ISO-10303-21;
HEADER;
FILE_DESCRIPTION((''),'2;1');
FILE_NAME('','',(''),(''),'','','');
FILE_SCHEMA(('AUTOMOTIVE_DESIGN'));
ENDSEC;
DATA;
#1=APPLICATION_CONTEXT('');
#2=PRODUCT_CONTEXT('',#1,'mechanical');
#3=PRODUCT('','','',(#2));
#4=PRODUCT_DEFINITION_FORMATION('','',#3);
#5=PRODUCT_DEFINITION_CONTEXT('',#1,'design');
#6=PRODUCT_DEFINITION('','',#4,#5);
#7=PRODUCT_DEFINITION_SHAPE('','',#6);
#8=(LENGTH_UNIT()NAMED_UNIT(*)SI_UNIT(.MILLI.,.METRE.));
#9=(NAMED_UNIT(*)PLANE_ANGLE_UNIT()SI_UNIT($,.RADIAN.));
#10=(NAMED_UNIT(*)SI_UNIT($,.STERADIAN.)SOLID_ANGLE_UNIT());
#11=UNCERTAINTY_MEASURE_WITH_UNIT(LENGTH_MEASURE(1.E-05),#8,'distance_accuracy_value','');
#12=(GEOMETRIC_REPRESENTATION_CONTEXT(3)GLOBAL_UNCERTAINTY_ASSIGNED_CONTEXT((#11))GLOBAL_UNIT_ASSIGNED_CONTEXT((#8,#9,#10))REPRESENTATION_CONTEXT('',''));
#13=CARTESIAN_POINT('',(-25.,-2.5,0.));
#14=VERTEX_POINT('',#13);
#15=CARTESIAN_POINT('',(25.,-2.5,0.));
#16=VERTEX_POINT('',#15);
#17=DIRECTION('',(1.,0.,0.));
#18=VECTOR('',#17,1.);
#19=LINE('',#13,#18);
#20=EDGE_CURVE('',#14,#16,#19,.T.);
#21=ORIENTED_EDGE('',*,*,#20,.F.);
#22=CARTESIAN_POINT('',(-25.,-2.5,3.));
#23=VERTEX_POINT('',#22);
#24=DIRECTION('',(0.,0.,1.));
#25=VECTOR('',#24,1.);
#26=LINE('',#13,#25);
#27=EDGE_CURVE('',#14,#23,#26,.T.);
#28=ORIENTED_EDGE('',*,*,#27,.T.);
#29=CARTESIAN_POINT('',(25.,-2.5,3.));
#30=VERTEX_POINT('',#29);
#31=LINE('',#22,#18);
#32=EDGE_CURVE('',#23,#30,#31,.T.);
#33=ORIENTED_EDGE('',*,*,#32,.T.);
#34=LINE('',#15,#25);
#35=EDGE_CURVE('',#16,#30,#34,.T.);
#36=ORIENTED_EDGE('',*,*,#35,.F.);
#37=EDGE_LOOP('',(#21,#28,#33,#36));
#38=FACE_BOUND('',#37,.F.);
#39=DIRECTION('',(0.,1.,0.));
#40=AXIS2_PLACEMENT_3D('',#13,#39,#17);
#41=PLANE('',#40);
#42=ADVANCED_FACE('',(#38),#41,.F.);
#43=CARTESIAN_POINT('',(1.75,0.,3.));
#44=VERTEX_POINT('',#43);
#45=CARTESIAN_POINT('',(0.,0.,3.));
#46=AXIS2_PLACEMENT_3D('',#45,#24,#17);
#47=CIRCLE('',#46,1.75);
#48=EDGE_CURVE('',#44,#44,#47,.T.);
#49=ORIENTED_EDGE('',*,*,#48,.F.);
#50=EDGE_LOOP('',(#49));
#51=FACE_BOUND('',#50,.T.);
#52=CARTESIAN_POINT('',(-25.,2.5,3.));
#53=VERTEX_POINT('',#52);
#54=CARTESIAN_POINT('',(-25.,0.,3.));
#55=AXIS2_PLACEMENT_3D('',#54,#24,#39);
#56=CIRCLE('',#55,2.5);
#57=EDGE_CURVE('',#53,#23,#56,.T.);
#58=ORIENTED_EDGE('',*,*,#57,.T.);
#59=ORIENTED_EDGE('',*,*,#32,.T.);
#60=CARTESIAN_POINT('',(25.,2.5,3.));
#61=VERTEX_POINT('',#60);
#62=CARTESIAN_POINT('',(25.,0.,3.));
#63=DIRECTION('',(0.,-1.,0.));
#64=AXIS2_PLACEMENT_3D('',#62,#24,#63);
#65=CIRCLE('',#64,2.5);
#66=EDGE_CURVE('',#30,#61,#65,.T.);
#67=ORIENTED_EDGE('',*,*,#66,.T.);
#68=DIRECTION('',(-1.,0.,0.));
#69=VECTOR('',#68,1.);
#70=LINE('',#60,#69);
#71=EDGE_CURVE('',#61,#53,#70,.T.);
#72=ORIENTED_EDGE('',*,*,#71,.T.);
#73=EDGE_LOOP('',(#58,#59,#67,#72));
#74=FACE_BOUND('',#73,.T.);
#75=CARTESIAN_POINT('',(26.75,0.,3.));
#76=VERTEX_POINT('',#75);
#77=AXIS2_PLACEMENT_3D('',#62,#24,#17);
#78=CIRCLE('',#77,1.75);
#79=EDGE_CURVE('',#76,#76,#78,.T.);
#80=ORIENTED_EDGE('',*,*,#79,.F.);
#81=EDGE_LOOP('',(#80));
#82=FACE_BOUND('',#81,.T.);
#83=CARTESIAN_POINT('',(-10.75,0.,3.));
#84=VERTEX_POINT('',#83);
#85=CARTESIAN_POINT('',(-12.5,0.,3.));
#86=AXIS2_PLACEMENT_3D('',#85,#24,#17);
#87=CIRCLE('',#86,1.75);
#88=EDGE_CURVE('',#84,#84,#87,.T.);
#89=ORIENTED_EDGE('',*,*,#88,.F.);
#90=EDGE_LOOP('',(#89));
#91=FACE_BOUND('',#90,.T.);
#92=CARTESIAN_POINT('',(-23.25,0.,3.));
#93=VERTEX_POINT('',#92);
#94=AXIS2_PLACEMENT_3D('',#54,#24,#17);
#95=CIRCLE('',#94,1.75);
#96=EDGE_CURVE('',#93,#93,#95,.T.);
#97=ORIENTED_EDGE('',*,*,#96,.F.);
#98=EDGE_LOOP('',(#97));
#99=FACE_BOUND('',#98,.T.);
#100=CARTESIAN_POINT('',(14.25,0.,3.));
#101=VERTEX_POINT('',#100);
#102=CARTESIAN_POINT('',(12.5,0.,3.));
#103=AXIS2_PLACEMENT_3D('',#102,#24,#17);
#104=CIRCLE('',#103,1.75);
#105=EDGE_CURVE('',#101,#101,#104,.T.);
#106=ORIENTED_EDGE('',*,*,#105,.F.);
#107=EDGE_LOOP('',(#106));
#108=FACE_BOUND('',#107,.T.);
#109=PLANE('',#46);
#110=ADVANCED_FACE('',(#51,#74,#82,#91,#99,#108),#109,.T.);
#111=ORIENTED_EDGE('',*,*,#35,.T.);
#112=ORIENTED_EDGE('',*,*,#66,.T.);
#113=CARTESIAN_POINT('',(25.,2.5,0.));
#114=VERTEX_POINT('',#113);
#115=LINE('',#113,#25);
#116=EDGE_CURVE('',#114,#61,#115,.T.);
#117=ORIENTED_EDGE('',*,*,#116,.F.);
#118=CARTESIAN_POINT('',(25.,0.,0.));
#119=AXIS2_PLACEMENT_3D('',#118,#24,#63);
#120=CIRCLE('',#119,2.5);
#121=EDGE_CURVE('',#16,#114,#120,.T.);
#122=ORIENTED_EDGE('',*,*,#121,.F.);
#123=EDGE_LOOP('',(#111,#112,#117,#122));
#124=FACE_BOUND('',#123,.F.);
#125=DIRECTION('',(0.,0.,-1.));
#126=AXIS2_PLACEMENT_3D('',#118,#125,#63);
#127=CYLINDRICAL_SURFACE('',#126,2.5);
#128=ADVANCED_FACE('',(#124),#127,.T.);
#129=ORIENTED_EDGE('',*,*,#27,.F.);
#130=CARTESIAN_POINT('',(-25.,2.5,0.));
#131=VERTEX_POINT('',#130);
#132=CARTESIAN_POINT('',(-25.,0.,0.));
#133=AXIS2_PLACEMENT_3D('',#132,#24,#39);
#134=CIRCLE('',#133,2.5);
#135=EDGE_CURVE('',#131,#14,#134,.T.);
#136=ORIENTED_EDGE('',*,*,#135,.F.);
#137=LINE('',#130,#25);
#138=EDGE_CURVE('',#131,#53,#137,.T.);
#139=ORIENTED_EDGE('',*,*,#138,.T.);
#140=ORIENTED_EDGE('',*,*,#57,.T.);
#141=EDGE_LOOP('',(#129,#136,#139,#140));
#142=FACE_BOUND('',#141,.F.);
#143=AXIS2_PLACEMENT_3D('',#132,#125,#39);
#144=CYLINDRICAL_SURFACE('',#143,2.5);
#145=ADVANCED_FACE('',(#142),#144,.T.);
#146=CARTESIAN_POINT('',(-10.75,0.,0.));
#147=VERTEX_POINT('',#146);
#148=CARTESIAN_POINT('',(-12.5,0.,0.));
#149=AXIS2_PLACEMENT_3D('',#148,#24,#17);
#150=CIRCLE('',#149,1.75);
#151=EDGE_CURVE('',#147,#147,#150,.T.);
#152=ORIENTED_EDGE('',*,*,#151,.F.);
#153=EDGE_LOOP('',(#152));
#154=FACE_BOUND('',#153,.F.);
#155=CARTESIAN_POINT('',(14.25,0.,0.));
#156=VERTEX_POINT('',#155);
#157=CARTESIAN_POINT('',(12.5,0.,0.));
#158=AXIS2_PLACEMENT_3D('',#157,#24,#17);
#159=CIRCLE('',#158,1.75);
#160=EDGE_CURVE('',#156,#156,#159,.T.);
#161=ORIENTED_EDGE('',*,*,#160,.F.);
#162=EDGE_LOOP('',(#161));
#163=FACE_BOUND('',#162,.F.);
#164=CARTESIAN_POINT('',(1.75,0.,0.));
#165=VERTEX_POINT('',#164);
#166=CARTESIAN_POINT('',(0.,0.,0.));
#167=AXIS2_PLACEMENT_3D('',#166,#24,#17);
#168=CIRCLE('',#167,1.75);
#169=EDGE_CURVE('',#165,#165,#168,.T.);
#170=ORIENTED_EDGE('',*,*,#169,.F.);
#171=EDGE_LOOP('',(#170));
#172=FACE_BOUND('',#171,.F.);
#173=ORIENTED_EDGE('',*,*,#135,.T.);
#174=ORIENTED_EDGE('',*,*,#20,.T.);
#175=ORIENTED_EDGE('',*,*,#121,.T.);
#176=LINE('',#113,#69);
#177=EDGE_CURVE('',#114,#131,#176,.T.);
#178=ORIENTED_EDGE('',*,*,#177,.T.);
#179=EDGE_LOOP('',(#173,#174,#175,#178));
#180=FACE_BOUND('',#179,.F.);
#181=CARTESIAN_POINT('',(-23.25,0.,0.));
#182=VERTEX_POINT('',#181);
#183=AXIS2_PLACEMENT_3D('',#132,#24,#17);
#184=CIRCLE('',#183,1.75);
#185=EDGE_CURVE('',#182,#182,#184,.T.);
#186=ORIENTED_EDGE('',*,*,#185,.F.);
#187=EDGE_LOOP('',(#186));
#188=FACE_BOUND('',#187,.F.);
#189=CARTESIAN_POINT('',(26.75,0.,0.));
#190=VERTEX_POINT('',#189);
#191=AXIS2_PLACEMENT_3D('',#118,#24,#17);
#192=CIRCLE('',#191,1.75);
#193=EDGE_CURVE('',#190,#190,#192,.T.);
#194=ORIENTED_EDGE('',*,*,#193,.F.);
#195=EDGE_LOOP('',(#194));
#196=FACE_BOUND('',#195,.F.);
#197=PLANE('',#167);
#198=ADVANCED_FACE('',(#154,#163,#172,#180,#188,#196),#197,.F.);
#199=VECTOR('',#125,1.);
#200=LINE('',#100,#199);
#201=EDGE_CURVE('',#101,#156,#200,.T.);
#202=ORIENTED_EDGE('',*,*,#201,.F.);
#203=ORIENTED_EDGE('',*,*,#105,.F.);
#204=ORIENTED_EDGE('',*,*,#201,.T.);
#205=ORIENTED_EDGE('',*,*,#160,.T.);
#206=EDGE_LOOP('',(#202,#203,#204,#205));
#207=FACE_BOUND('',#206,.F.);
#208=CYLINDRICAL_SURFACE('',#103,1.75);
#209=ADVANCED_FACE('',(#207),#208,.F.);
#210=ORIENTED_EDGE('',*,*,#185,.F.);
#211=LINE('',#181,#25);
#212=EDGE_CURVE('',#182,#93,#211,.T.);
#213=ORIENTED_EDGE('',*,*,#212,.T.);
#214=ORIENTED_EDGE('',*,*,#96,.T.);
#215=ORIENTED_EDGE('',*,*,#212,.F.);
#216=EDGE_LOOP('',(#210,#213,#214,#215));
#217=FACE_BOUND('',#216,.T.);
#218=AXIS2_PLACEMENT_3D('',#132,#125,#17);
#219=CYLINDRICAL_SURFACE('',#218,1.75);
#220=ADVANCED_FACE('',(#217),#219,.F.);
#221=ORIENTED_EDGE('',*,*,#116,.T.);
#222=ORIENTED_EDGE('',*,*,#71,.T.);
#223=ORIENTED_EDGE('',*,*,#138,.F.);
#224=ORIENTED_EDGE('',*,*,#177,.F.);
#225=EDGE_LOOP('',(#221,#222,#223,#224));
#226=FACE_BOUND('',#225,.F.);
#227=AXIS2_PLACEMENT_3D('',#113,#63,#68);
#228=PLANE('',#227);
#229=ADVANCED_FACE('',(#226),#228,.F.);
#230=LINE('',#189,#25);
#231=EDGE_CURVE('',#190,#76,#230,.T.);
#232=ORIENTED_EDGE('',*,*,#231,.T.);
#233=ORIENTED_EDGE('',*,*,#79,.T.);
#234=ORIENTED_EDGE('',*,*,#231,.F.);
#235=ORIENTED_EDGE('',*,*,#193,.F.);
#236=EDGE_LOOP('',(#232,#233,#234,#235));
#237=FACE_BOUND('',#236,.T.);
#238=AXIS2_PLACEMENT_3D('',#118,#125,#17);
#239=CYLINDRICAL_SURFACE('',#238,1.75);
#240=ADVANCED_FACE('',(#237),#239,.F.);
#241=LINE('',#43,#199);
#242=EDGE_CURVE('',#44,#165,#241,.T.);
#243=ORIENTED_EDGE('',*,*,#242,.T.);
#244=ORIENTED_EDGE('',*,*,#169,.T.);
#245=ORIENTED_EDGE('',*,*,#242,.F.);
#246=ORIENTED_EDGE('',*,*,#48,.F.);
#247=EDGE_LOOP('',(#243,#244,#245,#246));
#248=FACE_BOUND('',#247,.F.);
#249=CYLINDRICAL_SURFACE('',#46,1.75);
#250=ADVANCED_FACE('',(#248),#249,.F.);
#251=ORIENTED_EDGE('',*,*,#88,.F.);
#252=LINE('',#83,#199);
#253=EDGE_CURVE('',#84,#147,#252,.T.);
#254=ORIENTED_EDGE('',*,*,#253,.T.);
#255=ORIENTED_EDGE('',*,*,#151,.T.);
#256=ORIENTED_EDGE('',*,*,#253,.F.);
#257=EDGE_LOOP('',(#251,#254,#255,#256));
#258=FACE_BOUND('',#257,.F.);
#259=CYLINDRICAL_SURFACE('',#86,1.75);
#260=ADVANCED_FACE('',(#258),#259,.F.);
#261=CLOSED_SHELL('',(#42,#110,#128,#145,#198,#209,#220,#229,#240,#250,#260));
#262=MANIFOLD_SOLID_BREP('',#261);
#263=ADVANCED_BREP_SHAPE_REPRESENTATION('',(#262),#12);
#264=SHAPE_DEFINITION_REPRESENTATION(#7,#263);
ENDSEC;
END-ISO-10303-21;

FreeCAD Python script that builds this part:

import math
import FreeCAD as App
import Part
import Sketcher
from FreeCAD import Vector
Q = App.Units.Quantity

doc = App.newDocument("Part")
params = doc.addObject("Spreadsheet::Sheet", "Params")
for row, (alias, value) in enumerate([
    ("sketch1_diameter", "3.5 mm"),
    ("sketch1_radius", "2.5 mm"),
    ("sketch1_width", "50 mm"),
    ("pad1_length", "3 mm"),
    ("sketch2_diameter", "3.5 mm"),
], start=1):
    params.set(f"A{row}", alias)
    params.set(f"B{row}", "=" + value)
    params.setAlias(f"B{row}", alias)

body = doc.addObject("PartDesign::Body", "Body")

# Sketch on XY plane
sketch1 = body.newObject("Sketcher::SketchObject", "Sketch")
sketch1.AttachmentSupport = (doc.getObject("XY_Plane"), [""])
sketch1.MapMode = "FlatFace"
sketch1.addGeometry([
    Part.LineSegment(Vector(25, 2.5, 0), Vector(-25, 2.5, 0)),  # 0
    Part.ArcOfCircle(Part.Circle(Vector(-25, 0, 0), Vector(0, 0, 1), 2.5), math.radians(90), math.radians(270)),  # 1
    Part.LineSegment(Vector(-25, -2.5, 0), Vector(25, -2.5, 0)),  # 2
    Part.ArcOfCircle(Part.Circle(Vector(25, 0, 0), Vector(0, 0, 1), 2.5), math.radians(-90), math.radians(90)),  # 3
    Part.Circle(Vector(-25, 0, 0), Vector(0, 0, 1), 1.75),  # 4
    Part.Circle(Vector(25, 0, 0), Vector(0, 0, 1), 1.75),  # 5
], False)
sketch1.addConstraint([
    Sketcher.Constraint("Tangent", 0, 2, 1, 1),
    Sketcher.Constraint("Tangent", 1, 2, 2, 1),
    Sketcher.Constraint("Tangent", 2, 2, 3, 1),
    Sketcher.Constraint("Tangent", 3, 2, 0, 1),
    Sketcher.Constraint("Horizontal", 0),
    Sketcher.Constraint("Horizontal", 2),
    Sketcher.Constraint("Coincident", 4, 3, 1, 3),
    Sketcher.Constraint("Coincident", 5, 3, 3, 3),
    Sketcher.Constraint("Equal", 4, 5),
    Sketcher.Constraint("Symmetric", 1, 3, 3, 3, -1, 1),
    Sketcher.Constraint("Diameter", 4, Q("3.5 mm")),
    Sketcher.Constraint("Radius", 1, Q("2.5 mm")),
    Sketcher.Constraint("DistanceX", 0, 2, 0, 1, Q("50 mm")),
])
sketch1.setExpression("Constraints[10]", "Params.sketch1_diameter")
sketch1.setExpression("Constraints[11]", "Params.sketch1_radius")
sketch1.setExpression("Constraints[12]", "Params.sketch1_width")
pad1 = body.newObject("PartDesign::Pad", "Pad")
pad1.Profile = sketch1
pad1.setExpression("Length", "Params.pad1_length")

# Sketch on XY plane
sketch2 = body.newObject("Sketcher::SketchObject", "Sketch001")
sketch2.AttachmentSupport = (doc.getObject("XY_Plane"), [""])
sketch2.MapMode = "FlatFace"
sketch2.AttachmentOffset = App.Placement(Vector(0, 0, 3), App.Rotation())
sketch2.addGeometry([
    Part.Circle(Vector(12.5, 0, 0), Vector(0, 0, 1), 1.75),
    Part.Circle(Vector(-12.5, 0, 0), Vector(0, 0, 1), 1.75),
    Part.Circle(Vector(0, 0, 0), Vector(0, 0, 1), 1.75),
], False)
sketch2.addConstraint([
    Sketcher.Constraint("Coincident", 2, 3, -1, 1),
    Sketcher.Constraint("Equal", 0, 1),
    Sketcher.Constraint("Equal", 1, 2),
    Sketcher.Constraint("Symmetric", 0, 3, 1, 3, -1, 1),
    Sketcher.Constraint("PointOnObject", 0, 3, -1),
    Sketcher.Constraint("Diameter", 0, Q("3.5 mm")),
    Sketcher.Constraint("DistanceX", 1, 3, 0, 3, Q("25 mm")),
])
sketch2.setExpression("Constraints[5]", "Params.sketch2_diameter")
pocket1 = body.newObject("PartDesign::Pocket", "Pocket")
pocket1.Profile = sketch2
pocket1.Type = "ThroughAll"

doc.recompute()
